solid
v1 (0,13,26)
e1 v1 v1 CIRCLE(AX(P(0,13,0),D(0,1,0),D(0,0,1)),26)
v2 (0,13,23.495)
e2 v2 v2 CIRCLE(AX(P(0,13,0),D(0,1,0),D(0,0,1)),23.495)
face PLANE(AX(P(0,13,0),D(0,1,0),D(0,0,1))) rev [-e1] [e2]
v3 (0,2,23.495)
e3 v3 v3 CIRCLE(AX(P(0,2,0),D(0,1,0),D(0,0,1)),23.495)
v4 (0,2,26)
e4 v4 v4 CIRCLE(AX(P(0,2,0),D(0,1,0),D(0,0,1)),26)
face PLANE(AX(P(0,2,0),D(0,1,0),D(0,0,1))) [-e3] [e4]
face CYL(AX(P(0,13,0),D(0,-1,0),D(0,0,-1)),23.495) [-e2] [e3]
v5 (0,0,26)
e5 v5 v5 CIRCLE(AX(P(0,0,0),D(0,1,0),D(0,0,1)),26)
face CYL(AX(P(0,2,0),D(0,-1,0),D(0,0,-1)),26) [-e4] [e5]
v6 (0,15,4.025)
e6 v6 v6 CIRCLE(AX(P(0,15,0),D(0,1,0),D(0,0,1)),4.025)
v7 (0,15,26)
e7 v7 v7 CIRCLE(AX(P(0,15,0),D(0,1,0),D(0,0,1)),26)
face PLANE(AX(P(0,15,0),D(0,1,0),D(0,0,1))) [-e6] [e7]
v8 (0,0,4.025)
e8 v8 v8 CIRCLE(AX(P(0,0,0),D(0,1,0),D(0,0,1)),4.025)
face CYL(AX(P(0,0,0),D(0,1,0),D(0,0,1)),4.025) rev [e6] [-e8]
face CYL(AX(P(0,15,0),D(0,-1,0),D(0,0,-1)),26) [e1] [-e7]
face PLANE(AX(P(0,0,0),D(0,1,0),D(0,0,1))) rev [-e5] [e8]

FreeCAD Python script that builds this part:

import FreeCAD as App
import Part
import Sketcher
from FreeCAD import Vector

doc = App.newDocument("Part")
body = doc.addObject("PartDesign::Body", "Body")

sketch1 = body.newObject("Sketcher::SketchObject", "Sketch")
sketch1.AttachmentSupport = (doc.getObject("XZ_Plane"), [""])
sketch1.MapMode = "FlatFace"
sketch1.addGeometry(Part.Circle(Vector(0, 0, 0), Vector(0, 0, 1), 26), False)
sketch1.addConstraint([
    Sketcher.Constraint("Coincident", 0, 3, -1, 1),
    Sketcher.Constraint("Diameter", 0, 52.0),
])
pad1 = body.newObject("PartDesign::Pad", "Pad")
pad1.Profile = sketch1
pad1.Length = 2
pad1.Reversed = True

sketch2 = body.newObject("Sketcher::SketchObject", "Sketch001")
sketch2.AttachmentSupport = (doc.getObject("XZ_Plane"), [""])
sketch2.MapMode = "FlatFace"
sketch2.AttachmentOffset = App.Placement(Vector(0, 0, -2), App.Rotation())
sketch2.addGeometry(Part.Circle(Vector(0, 0, 0), Vector(0, 0, 1), 23), False)
sketch2.addConstraint([
    Sketcher.Constraint("Coincident", 0, 3, -1, 1),
    Sketcher.Constraint("Diameter", 0, 46.99),
])
pad2 = body.newObject("PartDesign::Pad", "Pad001")
pad2.Profile = sketch2
pad2.Length = 11
pad2.Reversed = True

sketch3 = body.newObject("Sketcher::SketchObject", "Sketch002")
sketch3.AttachmentSupport = (doc.getObject("XZ_Plane"), [""])
sketch3.MapMode = "FlatFace"
sketch3.AttachmentOffset = App.Placement(Vector(0, 0, -13), App.Rotation())
sketch3.addGeometry(Part.Circle(Vector(0, 0, 0), Vector(0, 0, 1), 26), False)
sketch3.addConstraint([
    Sketcher.Constraint("Coincident", 0, 3, -1, 1),
    Sketcher.Constraint("Diameter", 0, 52.0),
])
pad3 = body.newObject("PartDesign::Pad", "Pad002")
pad3.Profile = sketch3
pad3.Length = 2
pad3.Reversed = True

sketch4 = body.newObject("Sketcher::SketchObject", "Sketch003")
sketch4.AttachmentSupport = (doc.getObject("XZ_Plane"), [""])
sketch4.MapMode = "FlatFace"
sketch4.AttachmentOffset = App.Placement(Vector(0, 0, -15), App.Rotation())
sketch4.addGeometry(Part.Circle(Vector(0, 0, 0), Vector(0, 0, 1), 4), False)
sketch4.addConstraint([
    Sketcher.Constraint("Coincident", 0, 3, -1, 1),
    Sketcher.Constraint("Diameter", 0, 8.05),
])
pocket1 = body.newObject("PartDesign::Pocket", "Pocket")
pocket1.Profile = sketch4
pocket1.Type = "ThroughAll"
pocket1.Reversed = True

doc.recompute()
